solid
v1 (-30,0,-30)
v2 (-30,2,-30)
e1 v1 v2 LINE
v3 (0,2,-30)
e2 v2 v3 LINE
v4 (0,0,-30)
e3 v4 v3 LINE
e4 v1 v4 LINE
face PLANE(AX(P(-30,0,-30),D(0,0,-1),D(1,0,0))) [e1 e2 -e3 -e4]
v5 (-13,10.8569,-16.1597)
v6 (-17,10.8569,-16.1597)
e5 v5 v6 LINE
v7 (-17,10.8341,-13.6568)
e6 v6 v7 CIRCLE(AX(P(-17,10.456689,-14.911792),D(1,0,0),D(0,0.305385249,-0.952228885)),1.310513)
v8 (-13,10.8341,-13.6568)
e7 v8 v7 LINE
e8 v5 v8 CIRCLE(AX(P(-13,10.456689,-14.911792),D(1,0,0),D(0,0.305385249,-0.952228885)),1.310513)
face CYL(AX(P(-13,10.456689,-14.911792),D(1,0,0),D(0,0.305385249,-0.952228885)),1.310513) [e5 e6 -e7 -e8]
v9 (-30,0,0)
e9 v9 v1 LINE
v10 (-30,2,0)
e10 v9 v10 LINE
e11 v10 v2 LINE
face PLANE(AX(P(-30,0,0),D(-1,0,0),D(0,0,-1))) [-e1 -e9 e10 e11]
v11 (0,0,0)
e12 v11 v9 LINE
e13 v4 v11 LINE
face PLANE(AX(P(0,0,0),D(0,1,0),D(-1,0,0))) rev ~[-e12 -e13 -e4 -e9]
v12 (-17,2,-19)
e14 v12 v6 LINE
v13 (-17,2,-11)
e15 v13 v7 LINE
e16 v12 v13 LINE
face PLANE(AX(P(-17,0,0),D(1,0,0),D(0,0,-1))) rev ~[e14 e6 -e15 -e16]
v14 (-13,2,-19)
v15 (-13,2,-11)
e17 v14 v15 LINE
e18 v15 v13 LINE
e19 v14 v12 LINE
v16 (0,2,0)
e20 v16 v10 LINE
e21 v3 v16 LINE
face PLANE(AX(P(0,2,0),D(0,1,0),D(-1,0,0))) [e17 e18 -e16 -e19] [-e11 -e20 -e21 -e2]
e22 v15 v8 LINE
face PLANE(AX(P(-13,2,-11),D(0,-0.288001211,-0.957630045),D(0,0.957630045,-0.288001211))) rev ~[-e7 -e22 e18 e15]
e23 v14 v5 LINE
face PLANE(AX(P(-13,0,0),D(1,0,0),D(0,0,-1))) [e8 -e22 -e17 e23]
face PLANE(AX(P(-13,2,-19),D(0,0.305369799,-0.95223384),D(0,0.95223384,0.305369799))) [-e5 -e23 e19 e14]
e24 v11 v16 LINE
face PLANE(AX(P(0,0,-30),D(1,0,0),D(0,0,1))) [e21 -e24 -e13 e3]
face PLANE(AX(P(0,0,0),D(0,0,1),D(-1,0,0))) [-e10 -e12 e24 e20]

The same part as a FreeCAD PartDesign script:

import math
import FreeCAD as App
import Part
import Sketcher

V = App.Vector
Q = App.Units.Quantity


def add_polygon(sketch, points):
    """Adds a closed chain of lines whose ends are joined by coincident constraints."""
    first, n = sketch.GeometryCount, len(points)
    for a, b in zip(points, points[1:] + points[:1]):
        sketch.addGeometry(Part.LineSegment(App.Vector(*a, 0), App.Vector(*b, 0)), False)
    for i in range(n):
        sketch.addConstraint(Sketcher.Constraint("Coincident", first + i, 2, first + (i + 1) % n, 1))

doc = App.newDocument("Part")
body = doc.addObject("PartDesign::Body", "Body")

sketch1 = body.newObject("Sketcher::SketchObject", "Sketch")
sketch1.AttachmentSupport = (doc.getObject("XZ_Plane"), [""])
sketch1.MapMode = "FlatFace"
add_polygon(sketch1, [(-30, 0), (0, 0), (0, -30), (-30, -30)])
sketch1.addConstraint(Sketcher.Constraint("Horizontal", 0))
sketch1.addConstraint(Sketcher.Constraint("Vertical", 1))
sketch1.addConstraint(Sketcher.Constraint("Horizontal", 2))
sketch1.addConstraint(Sketcher.Constraint("Vertical", 3))
sketch1.addConstraint(Sketcher.Constraint("Coincident", 0, 2, -1, 1))
sketch1.addConstraint(Sketcher.Constraint("Equal", 2, 1))
sketch1.addConstraint(Sketcher.Constraint("DistanceX", 0, 1, 0, 2, Q("30 mm")))
pad1 = body.newObject("PartDesign::Pad", "Pad")
pad1.Profile = sketch1
pad1.Length = 2
pad1.Reversed = True

sketch2 = body.newObject("Sketcher::SketchObject", "Sketch001")
sketch2.AttachmentSupport = (doc.getObject("YZ_Plane"), [""])
sketch2.MapMode = "FlatFace"
sketch2.AttachmentOffset = App.Placement(V(0, 0, -13), App.Rotation())
sketch2.addGeometry(Part.LineSegment(V(2, -11, 0), V(2, -19, 0)), False)
sketch2.addGeometry(Part.LineSegment(V(2, -19, 0), V(10.9, -16.2, 0)), False)
sketch2.addGeometry(Part.ArcOfCircle(Part.Circle(V(10.5, -14.9, 0), V(0, 0, 1), 1.3), math.radians(-72), math.radians(73)), False)
sketch2.addGeometry(Part.LineSegment(V(10.8, -13.7, 0), V(2, -11, 0)), False)
sketch2.addConstraint(Sketcher.Constraint("Coincident", 0, 2, 1, 1))
sketch2.addConstraint(Sketcher.Constraint("Tangent", 1, 2, 2, 1))
sketch2.addConstraint(Sketcher.Constraint("Tangent", 2, 2, 3, 1))
sketch2.addConstraint(Sketcher.Constraint("Coincident", 3, 2, 0, 1))
sketch2.addConstraint(Sketcher.Constraint("Vertical", 0))
sketch2.addConstraint(Sketcher.Constraint("DistanceY", 0, 2, 0, 1, Q("8 mm")))
sketch2.addConstraint(Sketcher.Constraint("DistanceY", 3, 2, -1, 1, Q("11 mm")))
sketch2.addConstraint(Sketcher.Constraint("DistanceX", -1, 1, 0, 2, Q("2 mm")))
sketch2.addConstraint(Sketcher.Constraint("Angle", 1, Q("17.7804 deg")))
sketch2.addConstraint(Sketcher.Constraint("Radius", 2, Q("1.3105 mm")))
sketch2.addConstraint(Sketcher.Constraint("Distance", 3, Q("9.225 mm")))
pad2 = body.newObject("PartDesign::Pad", "Pad001")
pad2.Profile = sketch2
pad2.Length = 4
pad2.Reversed = True

doc.recompute()
